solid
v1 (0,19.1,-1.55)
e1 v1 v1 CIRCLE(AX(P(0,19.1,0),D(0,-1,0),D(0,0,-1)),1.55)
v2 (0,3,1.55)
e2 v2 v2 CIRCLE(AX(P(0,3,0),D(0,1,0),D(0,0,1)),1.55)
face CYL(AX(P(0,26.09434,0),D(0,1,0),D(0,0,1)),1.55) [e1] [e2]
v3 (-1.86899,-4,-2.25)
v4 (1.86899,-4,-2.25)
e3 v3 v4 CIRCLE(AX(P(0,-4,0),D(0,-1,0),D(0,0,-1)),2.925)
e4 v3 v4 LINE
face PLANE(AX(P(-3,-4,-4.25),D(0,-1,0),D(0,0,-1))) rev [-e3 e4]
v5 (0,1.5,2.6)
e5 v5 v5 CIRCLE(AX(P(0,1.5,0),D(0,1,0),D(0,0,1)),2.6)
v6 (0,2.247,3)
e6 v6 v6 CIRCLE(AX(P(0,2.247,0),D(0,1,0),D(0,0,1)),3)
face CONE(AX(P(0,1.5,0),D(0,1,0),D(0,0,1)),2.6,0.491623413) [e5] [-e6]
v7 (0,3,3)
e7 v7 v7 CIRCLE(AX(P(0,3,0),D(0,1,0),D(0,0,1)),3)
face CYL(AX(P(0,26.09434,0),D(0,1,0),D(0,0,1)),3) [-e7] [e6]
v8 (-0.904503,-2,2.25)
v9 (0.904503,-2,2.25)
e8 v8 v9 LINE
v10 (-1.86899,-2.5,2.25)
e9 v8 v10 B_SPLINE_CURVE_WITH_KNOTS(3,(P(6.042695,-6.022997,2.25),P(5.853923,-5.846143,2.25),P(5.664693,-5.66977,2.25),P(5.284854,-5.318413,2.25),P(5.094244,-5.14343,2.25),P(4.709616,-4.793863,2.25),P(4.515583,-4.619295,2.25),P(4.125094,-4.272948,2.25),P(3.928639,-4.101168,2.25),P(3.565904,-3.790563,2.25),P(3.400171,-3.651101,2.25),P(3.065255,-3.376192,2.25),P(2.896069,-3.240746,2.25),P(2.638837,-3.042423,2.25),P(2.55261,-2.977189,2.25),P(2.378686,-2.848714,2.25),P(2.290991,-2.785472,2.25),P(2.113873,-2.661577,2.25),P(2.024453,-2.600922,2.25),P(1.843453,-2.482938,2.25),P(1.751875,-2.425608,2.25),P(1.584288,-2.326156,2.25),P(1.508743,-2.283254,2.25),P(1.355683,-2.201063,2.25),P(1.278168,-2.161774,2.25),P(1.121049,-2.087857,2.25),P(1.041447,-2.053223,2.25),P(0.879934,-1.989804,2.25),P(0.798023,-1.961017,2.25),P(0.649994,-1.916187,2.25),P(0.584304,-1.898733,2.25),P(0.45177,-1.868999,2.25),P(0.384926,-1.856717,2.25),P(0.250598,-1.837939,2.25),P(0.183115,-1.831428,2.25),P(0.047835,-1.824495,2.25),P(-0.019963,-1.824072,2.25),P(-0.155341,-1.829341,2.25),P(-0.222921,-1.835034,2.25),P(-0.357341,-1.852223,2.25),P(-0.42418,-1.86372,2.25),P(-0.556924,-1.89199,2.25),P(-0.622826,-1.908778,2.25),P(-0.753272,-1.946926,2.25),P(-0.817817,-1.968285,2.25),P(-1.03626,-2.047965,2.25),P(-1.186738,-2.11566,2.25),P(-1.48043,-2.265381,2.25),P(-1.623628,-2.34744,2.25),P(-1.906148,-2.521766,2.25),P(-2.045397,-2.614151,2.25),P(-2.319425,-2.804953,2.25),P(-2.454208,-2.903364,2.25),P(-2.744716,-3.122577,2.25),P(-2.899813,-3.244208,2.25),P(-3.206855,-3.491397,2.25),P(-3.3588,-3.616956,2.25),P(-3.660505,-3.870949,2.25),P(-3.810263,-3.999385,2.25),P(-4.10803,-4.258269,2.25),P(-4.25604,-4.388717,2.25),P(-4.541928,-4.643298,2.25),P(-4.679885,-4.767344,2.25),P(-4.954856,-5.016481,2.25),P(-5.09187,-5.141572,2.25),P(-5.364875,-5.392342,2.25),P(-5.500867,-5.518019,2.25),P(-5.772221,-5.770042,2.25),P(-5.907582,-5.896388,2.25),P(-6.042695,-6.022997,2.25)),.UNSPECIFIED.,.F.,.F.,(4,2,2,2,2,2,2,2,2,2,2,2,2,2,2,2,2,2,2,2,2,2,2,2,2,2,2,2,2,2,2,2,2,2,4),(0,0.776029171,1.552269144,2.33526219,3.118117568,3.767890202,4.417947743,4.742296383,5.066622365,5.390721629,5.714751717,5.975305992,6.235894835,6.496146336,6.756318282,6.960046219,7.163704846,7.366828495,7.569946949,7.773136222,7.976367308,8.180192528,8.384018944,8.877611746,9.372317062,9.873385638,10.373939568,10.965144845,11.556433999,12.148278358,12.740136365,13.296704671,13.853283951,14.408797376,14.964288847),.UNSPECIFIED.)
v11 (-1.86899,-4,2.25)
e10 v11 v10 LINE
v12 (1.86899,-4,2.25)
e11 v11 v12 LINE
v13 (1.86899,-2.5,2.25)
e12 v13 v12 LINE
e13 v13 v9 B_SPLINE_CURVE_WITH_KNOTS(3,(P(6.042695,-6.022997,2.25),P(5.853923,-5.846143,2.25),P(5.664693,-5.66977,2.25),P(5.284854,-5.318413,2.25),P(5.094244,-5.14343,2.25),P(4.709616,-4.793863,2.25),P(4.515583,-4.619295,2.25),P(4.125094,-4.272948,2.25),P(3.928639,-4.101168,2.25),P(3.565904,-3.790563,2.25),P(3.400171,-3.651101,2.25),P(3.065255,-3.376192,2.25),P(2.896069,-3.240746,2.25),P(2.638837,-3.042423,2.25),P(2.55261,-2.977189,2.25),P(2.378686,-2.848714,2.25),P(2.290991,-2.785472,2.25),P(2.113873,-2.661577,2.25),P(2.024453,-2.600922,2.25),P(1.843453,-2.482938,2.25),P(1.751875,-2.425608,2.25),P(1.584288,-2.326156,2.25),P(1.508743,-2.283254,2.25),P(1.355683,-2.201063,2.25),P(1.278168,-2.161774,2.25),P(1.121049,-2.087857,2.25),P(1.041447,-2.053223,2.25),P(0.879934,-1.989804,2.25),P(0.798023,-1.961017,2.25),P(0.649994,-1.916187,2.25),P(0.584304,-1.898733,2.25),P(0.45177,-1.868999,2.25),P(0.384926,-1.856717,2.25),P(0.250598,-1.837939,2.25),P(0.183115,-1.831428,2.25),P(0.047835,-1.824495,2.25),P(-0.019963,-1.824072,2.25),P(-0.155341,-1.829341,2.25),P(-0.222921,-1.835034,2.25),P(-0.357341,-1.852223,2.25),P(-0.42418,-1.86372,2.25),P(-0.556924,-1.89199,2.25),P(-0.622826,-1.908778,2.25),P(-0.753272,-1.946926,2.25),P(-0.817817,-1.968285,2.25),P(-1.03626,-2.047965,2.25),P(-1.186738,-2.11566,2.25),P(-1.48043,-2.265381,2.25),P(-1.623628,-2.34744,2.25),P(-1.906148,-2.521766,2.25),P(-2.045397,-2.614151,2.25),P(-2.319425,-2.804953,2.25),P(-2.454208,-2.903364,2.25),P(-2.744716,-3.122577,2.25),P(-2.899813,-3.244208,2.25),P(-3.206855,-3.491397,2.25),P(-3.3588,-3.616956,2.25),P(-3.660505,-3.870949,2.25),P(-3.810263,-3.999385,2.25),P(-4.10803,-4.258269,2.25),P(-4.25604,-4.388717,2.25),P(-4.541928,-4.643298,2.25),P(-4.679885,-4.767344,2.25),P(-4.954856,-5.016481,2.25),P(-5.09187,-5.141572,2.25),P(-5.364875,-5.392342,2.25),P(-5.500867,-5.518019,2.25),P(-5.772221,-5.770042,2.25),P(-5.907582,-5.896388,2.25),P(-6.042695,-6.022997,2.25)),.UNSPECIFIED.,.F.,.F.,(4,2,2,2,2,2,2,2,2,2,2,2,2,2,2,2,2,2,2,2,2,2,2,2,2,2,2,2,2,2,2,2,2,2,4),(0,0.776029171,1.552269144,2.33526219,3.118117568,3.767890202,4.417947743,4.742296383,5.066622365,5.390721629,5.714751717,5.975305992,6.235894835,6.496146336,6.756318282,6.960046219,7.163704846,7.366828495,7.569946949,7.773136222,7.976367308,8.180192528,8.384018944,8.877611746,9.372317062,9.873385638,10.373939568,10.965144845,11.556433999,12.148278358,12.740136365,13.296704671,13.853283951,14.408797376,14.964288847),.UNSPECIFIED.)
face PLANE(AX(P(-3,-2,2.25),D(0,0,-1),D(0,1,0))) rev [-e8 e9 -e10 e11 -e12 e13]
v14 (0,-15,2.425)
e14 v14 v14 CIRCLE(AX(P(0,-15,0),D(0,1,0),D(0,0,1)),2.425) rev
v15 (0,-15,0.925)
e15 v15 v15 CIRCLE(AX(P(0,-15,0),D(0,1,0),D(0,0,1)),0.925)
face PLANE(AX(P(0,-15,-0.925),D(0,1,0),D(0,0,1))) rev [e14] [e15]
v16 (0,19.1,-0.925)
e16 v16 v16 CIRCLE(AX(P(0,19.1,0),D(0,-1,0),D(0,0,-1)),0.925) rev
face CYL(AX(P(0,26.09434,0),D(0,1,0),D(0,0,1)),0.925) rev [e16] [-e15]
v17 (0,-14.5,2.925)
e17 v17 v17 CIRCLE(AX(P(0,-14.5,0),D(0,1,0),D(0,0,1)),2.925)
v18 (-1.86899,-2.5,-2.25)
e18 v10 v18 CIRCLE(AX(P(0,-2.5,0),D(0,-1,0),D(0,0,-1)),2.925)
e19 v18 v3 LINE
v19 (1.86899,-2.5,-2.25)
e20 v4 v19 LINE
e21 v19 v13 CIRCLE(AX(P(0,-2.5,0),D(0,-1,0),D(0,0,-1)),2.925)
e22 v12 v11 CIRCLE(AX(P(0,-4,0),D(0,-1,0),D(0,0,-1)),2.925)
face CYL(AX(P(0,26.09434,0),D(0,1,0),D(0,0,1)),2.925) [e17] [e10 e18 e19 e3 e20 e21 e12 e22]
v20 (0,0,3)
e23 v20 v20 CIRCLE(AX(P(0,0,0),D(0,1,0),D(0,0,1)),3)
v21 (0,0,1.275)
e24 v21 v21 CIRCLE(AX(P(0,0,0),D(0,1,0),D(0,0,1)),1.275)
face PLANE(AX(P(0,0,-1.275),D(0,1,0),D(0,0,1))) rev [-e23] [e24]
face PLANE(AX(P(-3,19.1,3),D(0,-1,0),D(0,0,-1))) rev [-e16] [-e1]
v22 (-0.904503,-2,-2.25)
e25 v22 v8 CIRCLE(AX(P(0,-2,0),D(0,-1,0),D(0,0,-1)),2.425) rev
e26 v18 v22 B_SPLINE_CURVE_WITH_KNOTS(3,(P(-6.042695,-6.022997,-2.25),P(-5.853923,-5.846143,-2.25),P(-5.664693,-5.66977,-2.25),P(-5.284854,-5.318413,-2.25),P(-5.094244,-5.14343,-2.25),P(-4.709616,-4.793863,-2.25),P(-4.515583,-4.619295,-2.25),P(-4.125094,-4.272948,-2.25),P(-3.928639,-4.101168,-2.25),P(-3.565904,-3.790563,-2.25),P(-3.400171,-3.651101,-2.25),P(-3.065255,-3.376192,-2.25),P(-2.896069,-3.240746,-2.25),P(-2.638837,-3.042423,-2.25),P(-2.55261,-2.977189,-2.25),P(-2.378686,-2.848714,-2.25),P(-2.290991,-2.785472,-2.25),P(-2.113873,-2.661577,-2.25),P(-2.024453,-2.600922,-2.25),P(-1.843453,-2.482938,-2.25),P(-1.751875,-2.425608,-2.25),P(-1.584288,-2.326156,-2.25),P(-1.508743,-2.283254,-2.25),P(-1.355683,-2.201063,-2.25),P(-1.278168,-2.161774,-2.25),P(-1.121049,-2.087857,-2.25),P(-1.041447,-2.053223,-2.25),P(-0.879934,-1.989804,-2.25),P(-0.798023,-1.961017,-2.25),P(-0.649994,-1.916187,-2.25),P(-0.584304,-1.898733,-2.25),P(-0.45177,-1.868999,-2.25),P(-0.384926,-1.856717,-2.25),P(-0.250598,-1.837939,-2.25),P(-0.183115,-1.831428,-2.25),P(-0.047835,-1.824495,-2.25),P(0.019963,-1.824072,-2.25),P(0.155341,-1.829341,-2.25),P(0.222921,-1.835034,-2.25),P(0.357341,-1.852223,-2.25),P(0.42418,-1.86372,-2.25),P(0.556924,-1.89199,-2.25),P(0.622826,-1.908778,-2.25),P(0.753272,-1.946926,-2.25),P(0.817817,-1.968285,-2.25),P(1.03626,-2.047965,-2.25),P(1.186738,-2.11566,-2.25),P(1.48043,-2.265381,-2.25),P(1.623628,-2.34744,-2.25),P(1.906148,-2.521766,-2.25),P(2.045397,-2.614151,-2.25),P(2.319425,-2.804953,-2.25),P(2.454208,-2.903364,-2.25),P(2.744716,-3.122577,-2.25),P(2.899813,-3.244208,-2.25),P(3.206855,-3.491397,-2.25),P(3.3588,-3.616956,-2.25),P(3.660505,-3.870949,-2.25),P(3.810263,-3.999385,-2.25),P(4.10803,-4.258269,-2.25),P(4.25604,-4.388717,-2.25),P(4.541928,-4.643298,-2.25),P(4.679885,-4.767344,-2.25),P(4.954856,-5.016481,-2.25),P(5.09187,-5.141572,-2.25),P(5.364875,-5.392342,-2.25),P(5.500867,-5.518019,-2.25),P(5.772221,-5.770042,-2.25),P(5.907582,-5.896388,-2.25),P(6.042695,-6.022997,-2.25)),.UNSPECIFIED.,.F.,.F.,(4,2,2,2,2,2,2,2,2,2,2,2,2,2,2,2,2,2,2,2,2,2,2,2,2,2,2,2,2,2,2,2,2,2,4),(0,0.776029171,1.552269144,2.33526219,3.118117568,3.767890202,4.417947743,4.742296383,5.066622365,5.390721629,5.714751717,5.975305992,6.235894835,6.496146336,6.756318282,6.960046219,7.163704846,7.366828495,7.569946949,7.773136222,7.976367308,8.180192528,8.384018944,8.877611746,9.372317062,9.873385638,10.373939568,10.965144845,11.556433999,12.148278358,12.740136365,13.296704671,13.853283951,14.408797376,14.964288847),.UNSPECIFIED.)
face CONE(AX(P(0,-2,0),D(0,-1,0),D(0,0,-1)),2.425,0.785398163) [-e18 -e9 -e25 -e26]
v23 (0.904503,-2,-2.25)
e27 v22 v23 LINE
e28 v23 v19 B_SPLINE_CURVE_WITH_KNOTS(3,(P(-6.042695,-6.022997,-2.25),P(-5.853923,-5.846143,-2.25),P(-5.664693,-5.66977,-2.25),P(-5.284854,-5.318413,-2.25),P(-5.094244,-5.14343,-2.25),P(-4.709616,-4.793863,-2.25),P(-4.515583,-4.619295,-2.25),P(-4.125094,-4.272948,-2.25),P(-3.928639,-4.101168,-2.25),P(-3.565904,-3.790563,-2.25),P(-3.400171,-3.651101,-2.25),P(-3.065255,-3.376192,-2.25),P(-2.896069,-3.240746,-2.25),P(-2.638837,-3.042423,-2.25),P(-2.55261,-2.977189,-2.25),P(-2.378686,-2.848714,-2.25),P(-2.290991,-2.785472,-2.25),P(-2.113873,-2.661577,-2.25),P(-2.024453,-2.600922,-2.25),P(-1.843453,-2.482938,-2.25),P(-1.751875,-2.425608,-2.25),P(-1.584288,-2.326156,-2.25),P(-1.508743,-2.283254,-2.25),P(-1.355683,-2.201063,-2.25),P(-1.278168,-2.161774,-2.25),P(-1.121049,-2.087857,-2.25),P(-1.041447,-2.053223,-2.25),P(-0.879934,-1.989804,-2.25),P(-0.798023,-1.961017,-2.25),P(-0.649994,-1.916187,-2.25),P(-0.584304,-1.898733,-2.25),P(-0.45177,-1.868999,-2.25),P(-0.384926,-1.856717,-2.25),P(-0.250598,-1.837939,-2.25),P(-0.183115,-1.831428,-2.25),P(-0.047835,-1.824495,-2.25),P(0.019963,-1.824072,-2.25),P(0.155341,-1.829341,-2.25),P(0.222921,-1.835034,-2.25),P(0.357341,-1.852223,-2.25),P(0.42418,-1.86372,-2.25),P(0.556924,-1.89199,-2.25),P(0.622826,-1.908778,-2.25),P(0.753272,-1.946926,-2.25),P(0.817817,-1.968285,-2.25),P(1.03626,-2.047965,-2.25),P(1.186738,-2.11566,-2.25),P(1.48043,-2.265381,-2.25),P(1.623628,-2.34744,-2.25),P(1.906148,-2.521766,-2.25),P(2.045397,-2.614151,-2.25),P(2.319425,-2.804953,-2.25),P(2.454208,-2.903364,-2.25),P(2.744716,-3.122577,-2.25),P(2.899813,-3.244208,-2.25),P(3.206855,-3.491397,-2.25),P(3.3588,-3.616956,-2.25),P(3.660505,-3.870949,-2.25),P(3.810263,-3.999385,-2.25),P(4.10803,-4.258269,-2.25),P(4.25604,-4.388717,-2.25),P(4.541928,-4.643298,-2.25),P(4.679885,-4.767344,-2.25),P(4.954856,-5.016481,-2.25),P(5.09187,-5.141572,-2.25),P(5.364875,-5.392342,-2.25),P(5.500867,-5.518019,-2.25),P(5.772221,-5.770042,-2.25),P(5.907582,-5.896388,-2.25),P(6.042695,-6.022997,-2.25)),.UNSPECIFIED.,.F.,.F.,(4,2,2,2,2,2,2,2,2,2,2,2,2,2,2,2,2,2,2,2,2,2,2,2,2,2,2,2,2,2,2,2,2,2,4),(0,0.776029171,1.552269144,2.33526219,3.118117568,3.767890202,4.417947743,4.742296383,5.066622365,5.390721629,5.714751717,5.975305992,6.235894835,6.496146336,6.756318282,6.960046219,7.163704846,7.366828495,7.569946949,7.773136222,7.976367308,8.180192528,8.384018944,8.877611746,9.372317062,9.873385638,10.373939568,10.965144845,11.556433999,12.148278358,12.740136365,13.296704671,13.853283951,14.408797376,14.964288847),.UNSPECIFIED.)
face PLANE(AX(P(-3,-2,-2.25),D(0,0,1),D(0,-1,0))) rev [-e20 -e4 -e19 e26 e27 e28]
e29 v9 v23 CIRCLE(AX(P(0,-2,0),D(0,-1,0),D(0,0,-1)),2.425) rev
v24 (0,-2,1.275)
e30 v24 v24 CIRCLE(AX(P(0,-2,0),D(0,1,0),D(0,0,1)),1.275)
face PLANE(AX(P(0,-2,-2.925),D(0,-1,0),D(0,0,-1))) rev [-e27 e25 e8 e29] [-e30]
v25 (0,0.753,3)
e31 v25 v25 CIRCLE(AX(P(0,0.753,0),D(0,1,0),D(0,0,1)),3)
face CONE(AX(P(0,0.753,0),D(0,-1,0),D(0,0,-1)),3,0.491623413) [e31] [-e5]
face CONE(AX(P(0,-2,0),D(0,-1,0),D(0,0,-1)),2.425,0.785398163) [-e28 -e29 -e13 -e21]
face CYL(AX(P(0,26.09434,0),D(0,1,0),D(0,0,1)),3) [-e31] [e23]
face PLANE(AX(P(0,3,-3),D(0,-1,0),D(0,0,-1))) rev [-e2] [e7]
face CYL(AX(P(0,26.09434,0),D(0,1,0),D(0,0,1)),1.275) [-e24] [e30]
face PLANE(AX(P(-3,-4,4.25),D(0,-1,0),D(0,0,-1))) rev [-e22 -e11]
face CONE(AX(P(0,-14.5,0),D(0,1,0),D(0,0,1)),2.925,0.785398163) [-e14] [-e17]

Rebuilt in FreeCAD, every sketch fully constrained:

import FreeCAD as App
import Part
import Sketcher

V = App.Vector


def edges_at(feature, points):
    """Names of the edges that pass closest to the given points."""
    edges = feature.Shape.Edges
    near = lambda p: min(range(len(edges)), key=lambda i: edges[i].distToShape(Part.Vertex(*p))[0])
    return sorted({f"Edge{near(p) + 1}" for p in points})

doc = App.newDocument("Part")
body = doc.addObject("PartDesign::Body", "Body")

# Sketch on YZ plane
sketch1 = body.newObject("Sketcher::SketchObject", "Sketch")
sketch1.AttachmentSupport = (doc.getObject("YZ_Plane"), [""])
sketch1.MapMode = "FlatFace"
sketch1.addGeometry([
    Part.LineSegment(V(24.1, -0.9, 0), V(-15, -0.9, 0)),  # 0
    Part.LineSegment(V(-15, -0.9, 0), V(-15, -2.9, 0)),  # 1
    Part.LineSegment(V(-15, -2.9, 0), V(-2, -2.9, 0)),  # 2
    Part.LineSegment(V(-2, -2.9, 0), V(-2, -1.3, 0)),  # 3
    Part.LineSegment(V(-2, -1.3, 0), V(0, -1.3, 0)),  # 4
    Part.LineSegment(V(0, -1.3, 0), V(0, -3, 0)),  # 5
    Part.LineSegment(V(0, -3, 0), V(0.8, -3, 0)),  # 6
    Part.LineSegment(V(0.8, -3, 0), V(1.5, -2.6, 0)),  # 7
    Part.LineSegment(V(1.5, -2.6, 0), V(2.2, -3, 0)),  # 8
    Part.LineSegment(V(2.2, -3, 0), V(3, -3, 0)),  # 9
    Part.LineSegment(V(3, -3, 0), V(3, -1.6, 0)),  # 10
    Part.LineSegment(V(3, -1.6, 0), V(24.1, -1.6, 0)),  # 11
    Part.LineSegment(V(24.1, -1.6, 0), V(24.1, -0.9, 0)),  # 12
], False)
sketch1.addConstraint([
    Sketcher.Constraint("Coincident", 0, 2, 1, 1),
    Sketcher.Constraint("Coincident", 1, 2, 2, 1),
    Sketcher.Constraint("Coincident", 2, 2, 3, 1),
    Sketcher.Constraint("Coincident", 3, 2, 4, 1),
    Sketcher.Constraint("Coincident", 4, 2, 5, 1),
    Sketcher.Constraint("Coincident", 5, 2, 6, 1),
    Sketcher.Constraint("Coincident", 6, 2, 7, 1),
    Sketcher.Constraint("Coincident", 7, 2, 8, 1),
    Sketcher.Constraint("Coincident", 8, 2, 9, 1),
    Sketcher.Constraint("Coincident", 9, 2, 10, 1),
    Sketcher.Constraint("Coincident", 10, 2, 11, 1),
    Sketcher.Constraint("Coincident", 11, 2, 12, 1),
    Sketcher.Constraint("Coincident", 12, 2, 0, 1),
    Sketcher.Constraint("Horizontal", 0),
    Sketcher.Constraint("Vertical", 1),
    Sketcher.Constraint("Horizontal", 2),
    Sketcher.Constraint("Vertical", 3),
    Sketcher.Constraint("Horizontal", 4),
    Sketcher.Constraint("Vertical", 5),
    Sketcher.Constraint("Horizontal", 6),
    Sketcher.Constraint("Horizontal", 9),
    Sketcher.Constraint("Vertical", 10),
    Sketcher.Constraint("Horizontal", 11),
    Sketcher.Constraint("Vertical", 12),
    Sketcher.Constraint("PointOnObject", 4, 2, -2),
    Sketcher.Constraint("Horizontal", 6, 2, 8, 2),
    Sketcher.Constraint("Equal", 6, 9),
    Sketcher.Constraint("Equal", 4, 1),
    Sketcher.Constraint("Equal", 7, 8),
    Sketcher.Constraint("DistanceX", 2, 1, 2, 2, 13.0),
    Sketcher.Constraint("DistanceX", 4, 1, 4, 2, 2.0),
    Sketcher.Constraint("DistanceX", 0, 2, 0, 1, 39.1),
    Sketcher.Constraint("DistanceX", 11, 1, 11, 2, 21.1),
    Sketcher.Constraint("DistanceY", 5, 2, -1, 1, 3.0),
    Sketcher.Constraint("DistanceY", 3, 1, 3, 2, 1.65),
    Sketcher.Constraint("DistanceY", 10, 1, 10, 2, 1.45),
    Sketcher.Constraint("DistanceY", 7, 2, -1, 1, 2.6),
    Sketcher.Constraint("DistanceX", 6, 1, 6, 2, 0.753),
    Sketcher.Constraint("DistanceY", 5, 2, 5, 1, 1.725),
])
revolution = body.newObject("PartDesign::Revolution", "Revolution")
revolution.Profile = sketch1
revolution.ReferenceAxis = (sketch1, ["H_Axis"])
revolution.Angle = 360
doc.recompute()

chamfer = body.newObject("PartDesign::Chamfer", "Chamfer")
chamfer.Base = (revolution, edges_at(revolution, [(0, -2, -2.925), (0, -15, -2.925)]))
chamfer.Size = 0.5

# Sketch on YZ plane
sketch2 = body.newObject("Sketcher::SketchObject", "Sketch001")
sketch2.AttachmentSupport = (doc.getObject("YZ_Plane"), [""])
sketch2.MapMode = "FlatFace"
sketch2.addGeometry([
    Part.LineSegment(V(-2, 4.2, 0), V(-4, 4.2, 0)),  # 0
    Part.LineSegment(V(-4, 4.2, 0), V(-4, 2.2, 0)),  # 1
    Part.LineSegment(V(-4, 2.2, 0), V(-2, 2.2, 0)),  # 2
    Part.LineSegment(V(-2, 2.2, 0), V(-2, 4.2, 0)),  # 3
    Part.LineSegment(V(-2, -2.2, 0), V(-4, -2.2, 0)),  # 4
    Part.LineSegment(V(-4, -2.2, 0), V(-4, -4.2, 0)),  # 5
    Part.LineSegment(V(-4, -4.2, 0), V(-2, -4.2, 0)),  # 6
    Part.LineSegment(V(-2, -4.2, 0), V(-2, -2.2, 0)),  # 7
], False)
sketch2.addConstraint([
    Sketcher.Constraint("Coincident", 0, 2, 1, 1),
    Sketcher.Constraint("Coincident", 1, 2, 2, 1),
    Sketcher.Constraint("Coincident", 2, 2, 3, 1),
    Sketcher.Constraint("Coincident", 3, 2, 0, 1),
    Sketcher.Constraint("Coincident", 4, 2, 5, 1),
    Sketcher.Constraint("Coincident", 5, 2, 6, 1),
    Sketcher.Constraint("Coincident", 6, 2, 7, 1),
    Sketcher.Constraint("Coincident", 7, 2, 4, 1),
    Sketcher.Constraint("Horizontal", 0),
    Sketcher.Constraint("Vertical", 1),
    Sketcher.Constraint("Horizontal", 2),
    Sketcher.Constraint("Vertical", 3),
    Sketcher.Constraint("Horizontal", 4),
    Sketcher.Constraint("Vertical", 5),
    Sketcher.Constraint("Horizontal", 6),
    Sketcher.Constraint("Vertical", 7),
    Sketcher.Constraint("Symmetric", 1, 2, 4, 2, -1),
    Sketcher.Constraint("Symmetric", 3, 2, 6, 2, -1),
    Sketcher.Constraint("Equal", 6, 1),
    Sketcher.Constraint("DistanceX", 0, 2, 0, 1, 2.0),
    Sketcher.Constraint("DistanceX", 0, 2, -1, 1, 4.0),
    Sketcher.Constraint("DistanceY", 4, 2, 1, 2, 4.5),
])
pocket1 = body.newObject("PartDesign::Pocket", "Pocket")
pocket1.Profile = sketch2
pocket1.Length = 6
pocket1.Midplane = True

# Sketch on YZ plane
sketch3 = body.newObject("Sketcher::SketchObject", "Sketch002")
sketch3.AttachmentSupport = (doc.getObject("YZ_Plane"), [""])
sketch3.MapMode = "FlatFace"
sketch3.addGeometry([
    Part.LineSegment(V(24, 3, 0), V(19, 3, 0)),
    Part.LineSegment(V(19, 3, 0), V(19, -3, 0)),
    Part.LineSegment(V(19, -3, 0), V(24, -3, 0)),
    Part.LineSegment(V(24, -3, 0), V(24, 3, 0)),
], False)
sketch3.addConstraint([
    Sketcher.Constraint("Coincident", 0, 2, 1, 1),
    Sketcher.Constraint("Coincident", 1, 2, 2, 1),
    Sketcher.Constraint("Coincident", 2, 2, 3, 1),
    Sketcher.Constraint("Coincident", 3, 2, 0, 1),
    Sketcher.Constraint("Horizontal", 0),
    Sketcher.Constraint("Vertical", 1),
    Sketcher.Constraint("Horizontal", 2),
    Sketcher.Constraint("Vertical", 3),
    Sketcher.Constraint("DistanceX", 0, 2, 0, 1, 5.0),
    Sketcher.Constraint("DistanceY", 1, 2, 1, 1, 6.0),
    Sketcher.Constraint("DistanceY", -1, 1, 0, 2, 3.0),
    Sketcher.Constraint("DistanceX", -1, 1, 0, 2, 19.1),
])
pocket2 = body.newObject("PartDesign::Pocket", "Pocket001")
pocket2.Profile = sketch3
pocket2.Length = 6
pocket2.Midplane = True

doc.recompute()
